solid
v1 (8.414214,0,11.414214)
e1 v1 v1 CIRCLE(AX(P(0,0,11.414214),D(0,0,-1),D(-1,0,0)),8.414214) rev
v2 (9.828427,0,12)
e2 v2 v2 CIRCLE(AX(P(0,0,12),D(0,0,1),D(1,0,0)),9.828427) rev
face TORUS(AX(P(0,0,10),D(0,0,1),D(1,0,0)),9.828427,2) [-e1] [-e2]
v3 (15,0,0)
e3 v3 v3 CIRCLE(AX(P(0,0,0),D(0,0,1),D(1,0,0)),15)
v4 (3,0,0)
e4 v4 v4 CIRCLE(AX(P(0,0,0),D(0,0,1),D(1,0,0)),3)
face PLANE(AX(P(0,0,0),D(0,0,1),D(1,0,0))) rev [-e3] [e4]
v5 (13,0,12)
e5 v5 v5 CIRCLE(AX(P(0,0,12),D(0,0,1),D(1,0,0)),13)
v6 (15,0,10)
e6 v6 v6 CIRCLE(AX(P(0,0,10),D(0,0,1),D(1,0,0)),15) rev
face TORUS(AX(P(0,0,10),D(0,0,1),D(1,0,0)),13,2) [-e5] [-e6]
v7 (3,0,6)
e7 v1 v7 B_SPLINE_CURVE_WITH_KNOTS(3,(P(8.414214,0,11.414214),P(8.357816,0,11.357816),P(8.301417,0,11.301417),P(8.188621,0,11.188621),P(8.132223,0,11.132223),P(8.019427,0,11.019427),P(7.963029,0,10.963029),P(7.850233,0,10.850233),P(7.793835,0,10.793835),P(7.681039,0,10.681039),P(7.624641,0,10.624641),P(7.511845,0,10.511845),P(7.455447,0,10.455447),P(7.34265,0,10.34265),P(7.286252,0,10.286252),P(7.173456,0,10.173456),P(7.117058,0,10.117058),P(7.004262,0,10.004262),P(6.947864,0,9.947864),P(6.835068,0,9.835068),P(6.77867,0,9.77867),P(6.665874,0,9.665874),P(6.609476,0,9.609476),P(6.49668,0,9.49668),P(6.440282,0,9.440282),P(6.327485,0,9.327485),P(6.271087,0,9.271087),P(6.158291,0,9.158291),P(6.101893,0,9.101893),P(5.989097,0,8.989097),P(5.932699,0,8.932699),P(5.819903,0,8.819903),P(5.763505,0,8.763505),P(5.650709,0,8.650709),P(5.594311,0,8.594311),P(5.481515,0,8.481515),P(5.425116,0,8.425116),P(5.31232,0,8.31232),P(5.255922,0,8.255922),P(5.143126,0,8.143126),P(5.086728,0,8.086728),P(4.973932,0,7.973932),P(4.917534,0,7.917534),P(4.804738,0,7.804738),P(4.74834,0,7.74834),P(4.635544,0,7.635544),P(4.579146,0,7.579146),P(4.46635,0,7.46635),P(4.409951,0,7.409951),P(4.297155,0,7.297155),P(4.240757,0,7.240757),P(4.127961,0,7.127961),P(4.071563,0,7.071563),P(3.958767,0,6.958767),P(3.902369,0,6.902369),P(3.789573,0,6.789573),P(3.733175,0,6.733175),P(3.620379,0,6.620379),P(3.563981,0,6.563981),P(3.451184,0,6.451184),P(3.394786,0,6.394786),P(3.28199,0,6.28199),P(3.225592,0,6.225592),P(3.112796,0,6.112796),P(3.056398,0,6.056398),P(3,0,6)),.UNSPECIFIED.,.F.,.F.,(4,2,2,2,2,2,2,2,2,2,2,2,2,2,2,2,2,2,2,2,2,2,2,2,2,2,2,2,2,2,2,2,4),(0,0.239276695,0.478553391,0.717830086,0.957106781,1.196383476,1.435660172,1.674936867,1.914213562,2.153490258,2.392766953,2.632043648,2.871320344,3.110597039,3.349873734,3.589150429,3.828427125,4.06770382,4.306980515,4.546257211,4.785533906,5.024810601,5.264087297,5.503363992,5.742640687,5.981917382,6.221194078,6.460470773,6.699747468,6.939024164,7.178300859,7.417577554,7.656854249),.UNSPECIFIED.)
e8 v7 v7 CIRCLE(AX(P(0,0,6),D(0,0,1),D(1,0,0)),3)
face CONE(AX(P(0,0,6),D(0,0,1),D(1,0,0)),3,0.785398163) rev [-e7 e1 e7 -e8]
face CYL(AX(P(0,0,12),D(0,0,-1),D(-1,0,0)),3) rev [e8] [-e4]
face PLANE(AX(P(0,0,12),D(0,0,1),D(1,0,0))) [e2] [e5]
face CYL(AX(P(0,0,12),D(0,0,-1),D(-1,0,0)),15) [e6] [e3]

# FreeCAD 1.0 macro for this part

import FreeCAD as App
import Part
import Sketcher
from FreeCAD import Vector


def edges_at(feature, points):
    """Names of the edges that pass closest to the given points."""
    edges = feature.Shape.Edges
    near = lambda p: min(range(len(edges)), key=lambda i: edges[i].distToShape(Part.Vertex(*p))[0])
    return sorted({f"Edge{near(p) + 1}" for p in points})

doc = App.newDocument("Part")
body = doc.addObject("PartDesign::Body", "Body")

sketch1 = body.newObject("Sketcher::SketchObject", "Sketch")
sketch1.AttachmentSupport = (doc.getObject("XY_Plane"), [""])
sketch1.MapMode = "FlatFace"
sketch1.addGeometry(Part.Circle(Vector(0, 0, 0), Vector(0, 0, 1), 15), False)
sketch1.addGeometry(Part.Circle(Vector(0, 0, 0), Vector(0, 0, 1), 3), False)
sketch1.addConstraint(Sketcher.Constraint("Coincident", 0, 3, -1, 1))
sketch1.addConstraint(Sketcher.Constraint("Coincident", 1, 3, -1, 1))
sketch1.addConstraint(Sketcher.Constraint("Diameter", 0, 30.0))
sketch1.addConstraint(Sketcher.Constraint("Diameter", 1, 6.0))
pad1 = body.newObject("PartDesign::Pad", "Pad")
pad1.Profile = sketch1
pad1.Length = 12
doc.recompute()

chamfer = body.newObject("PartDesign::Chamfer", "Chamfer")
chamfer.Base = (pad1, edges_at(pad1, [(-3, 0, 12)]))
chamfer.Size = 6
doc.recompute()

fillet = body.newObject("PartDesign::Fillet", "Fillet")
fillet.Base = (chamfer, edges_at(chamfer, [(-9, 0, 12), (-15, 0, 12)]))
fillet.Radius = 2

doc.recompute()
